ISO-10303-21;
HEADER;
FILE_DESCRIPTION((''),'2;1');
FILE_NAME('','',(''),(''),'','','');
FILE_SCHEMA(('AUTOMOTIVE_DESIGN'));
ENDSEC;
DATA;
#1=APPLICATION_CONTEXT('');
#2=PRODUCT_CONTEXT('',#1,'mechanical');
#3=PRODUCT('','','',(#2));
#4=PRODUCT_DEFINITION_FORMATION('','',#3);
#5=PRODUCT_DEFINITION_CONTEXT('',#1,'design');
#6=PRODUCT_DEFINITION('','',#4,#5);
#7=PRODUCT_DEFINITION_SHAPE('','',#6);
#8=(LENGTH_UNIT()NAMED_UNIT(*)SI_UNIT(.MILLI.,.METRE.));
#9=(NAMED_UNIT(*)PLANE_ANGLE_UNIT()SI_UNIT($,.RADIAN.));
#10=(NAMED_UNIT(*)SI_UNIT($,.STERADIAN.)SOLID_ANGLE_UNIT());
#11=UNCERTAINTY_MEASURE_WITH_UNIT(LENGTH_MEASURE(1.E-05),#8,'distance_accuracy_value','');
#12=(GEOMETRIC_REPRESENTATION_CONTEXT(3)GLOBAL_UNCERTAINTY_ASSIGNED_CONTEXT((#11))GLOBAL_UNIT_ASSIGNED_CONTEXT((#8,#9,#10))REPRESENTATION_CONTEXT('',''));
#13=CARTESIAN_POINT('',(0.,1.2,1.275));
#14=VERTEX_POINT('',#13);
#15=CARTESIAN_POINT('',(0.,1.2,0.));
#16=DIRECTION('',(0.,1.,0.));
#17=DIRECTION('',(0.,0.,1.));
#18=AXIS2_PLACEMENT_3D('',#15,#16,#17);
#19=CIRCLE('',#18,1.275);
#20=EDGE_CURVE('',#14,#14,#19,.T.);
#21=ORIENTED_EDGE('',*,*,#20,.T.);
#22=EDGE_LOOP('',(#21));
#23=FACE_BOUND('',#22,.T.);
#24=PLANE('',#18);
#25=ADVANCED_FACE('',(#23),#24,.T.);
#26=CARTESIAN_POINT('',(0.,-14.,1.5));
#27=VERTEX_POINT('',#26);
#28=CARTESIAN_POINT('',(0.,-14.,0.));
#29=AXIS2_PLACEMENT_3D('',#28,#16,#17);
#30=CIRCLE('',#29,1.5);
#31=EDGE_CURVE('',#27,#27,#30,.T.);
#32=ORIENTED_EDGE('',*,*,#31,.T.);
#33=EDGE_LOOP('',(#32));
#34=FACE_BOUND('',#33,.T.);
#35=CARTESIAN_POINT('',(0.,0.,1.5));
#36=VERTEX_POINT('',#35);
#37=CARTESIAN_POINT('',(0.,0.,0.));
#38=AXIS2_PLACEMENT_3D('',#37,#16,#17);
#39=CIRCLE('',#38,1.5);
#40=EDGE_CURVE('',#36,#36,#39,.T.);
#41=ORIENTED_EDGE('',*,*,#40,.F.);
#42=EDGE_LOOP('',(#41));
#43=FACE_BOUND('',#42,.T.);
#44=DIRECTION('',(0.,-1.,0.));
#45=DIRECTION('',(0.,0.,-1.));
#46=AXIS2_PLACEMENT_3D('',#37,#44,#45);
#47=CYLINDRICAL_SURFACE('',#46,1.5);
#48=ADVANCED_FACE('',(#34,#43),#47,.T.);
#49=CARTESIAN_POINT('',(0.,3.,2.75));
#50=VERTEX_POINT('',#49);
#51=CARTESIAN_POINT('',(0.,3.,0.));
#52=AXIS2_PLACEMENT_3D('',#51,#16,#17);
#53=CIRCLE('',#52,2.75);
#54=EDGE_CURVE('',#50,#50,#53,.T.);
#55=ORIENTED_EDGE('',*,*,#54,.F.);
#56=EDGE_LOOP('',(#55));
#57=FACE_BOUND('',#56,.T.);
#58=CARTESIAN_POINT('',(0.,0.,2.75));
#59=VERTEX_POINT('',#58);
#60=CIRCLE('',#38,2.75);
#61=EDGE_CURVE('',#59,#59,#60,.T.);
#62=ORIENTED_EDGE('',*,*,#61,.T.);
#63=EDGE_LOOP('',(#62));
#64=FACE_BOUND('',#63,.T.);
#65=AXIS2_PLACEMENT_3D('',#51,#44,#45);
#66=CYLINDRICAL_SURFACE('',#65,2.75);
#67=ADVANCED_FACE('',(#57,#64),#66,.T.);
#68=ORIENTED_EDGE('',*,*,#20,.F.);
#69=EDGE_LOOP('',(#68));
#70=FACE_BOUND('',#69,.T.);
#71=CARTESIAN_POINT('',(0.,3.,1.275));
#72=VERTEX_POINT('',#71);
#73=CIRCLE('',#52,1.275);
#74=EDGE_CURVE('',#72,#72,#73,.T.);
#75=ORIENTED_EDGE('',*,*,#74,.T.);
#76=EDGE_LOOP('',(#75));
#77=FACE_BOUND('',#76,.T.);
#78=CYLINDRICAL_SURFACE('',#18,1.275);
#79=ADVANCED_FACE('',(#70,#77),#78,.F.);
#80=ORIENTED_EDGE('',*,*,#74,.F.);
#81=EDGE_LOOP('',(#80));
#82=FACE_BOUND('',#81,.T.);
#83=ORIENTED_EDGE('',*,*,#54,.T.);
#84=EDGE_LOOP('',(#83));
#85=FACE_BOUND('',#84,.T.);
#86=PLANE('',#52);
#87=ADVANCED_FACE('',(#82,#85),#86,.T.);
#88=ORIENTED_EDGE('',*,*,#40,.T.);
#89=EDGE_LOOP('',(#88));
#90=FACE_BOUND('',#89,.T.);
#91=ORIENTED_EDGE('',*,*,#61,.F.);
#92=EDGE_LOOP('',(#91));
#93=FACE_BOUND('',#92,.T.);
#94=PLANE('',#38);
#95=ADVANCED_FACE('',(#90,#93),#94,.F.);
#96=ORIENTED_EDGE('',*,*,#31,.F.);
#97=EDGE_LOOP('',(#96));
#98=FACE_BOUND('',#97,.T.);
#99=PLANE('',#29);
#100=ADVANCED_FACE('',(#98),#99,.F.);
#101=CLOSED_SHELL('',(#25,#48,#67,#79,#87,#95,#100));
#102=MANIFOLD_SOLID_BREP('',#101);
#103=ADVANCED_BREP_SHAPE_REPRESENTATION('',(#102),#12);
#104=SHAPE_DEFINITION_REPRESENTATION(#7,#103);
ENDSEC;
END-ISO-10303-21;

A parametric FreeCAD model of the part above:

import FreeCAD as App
import Part
import Sketcher
Q = App.Units.Quantity

doc = App.newDocument("Part")
params = doc.addObject("Spreadsheet::Sheet", "Params")
for row, (alias, value) in enumerate([
    ("sketch1_diameter", "5.5 mm"),
    ("pad1_length", "3 mm"),
    ("sketch2_diameter", "3 mm"),
    ("pad2_length", "14 mm"),
    ("sketch3_diameter", "2.55 mm"),
    ("pocket1_length", "1.8 mm"),
], start=1):
    params.set(f"A{row}", alias)
    params.set(f"B{row}", "=" + value)
    params.setAlias(f"B{row}", alias)

body = doc.addObject("PartDesign::Body", "Body")

sketch1 = doc.addObject("Sketcher::SketchObject", "Sketch")
body.addObject(sketch1)
sketch1.AttachmentSupport = (doc.XZ_Plane, [""])
sketch1.MapMode = "FlatFace"
sketch1.addGeometry(Part.Circle(App.Vector(0, 0, 0), App.Vector(0, 0, 1), 2.8), False)
sketch1.addConstraint(Sketcher.Constraint("Coincident", 0, 3, -1, 1))
sketch1.addConstraint(Sketcher.Constraint("Diameter", 0, Q("5.5 mm")))
sketch1.setExpression("Constraints[1]", "Params.sketch1_diameter")
pad1 = doc.addObject("PartDesign::Pad", "Pad")
body.addObject(pad1)
pad1.Profile = sketch1
pad1.setExpression("Length", "Params.pad1_length")
pad1.Reversed = True

sketch2 = doc.addObject("Sketcher::SketchObject", "Sketch001")
body.addObject(sketch2)
sketch2.AttachmentSupport = (doc.XZ_Plane, [""])
sketch2.MapMode = "FlatFace"
sketch2.AttachmentOffset = App.Placement(App.Vector(0, 0, 14), App.Rotation())
sketch2.addGeometry(Part.Circle(App.Vector(0, 0, 0), App.Vector(0, 0, 1), 1.5), False)
sketch2.addConstraint(Sketcher.Constraint("Coincident", 0, 3, -1, 1))
sketch2.addConstraint(Sketcher.Constraint("Diameter", 0, Q("3 mm")))
sketch2.setExpression("Constraints[1]", "Params.sketch2_diameter")
pad2 = doc.addObject("PartDesign::Pad", "Pad001")
body.addObject(pad2)
pad2.Profile = sketch2
pad2.setExpression("Length", "Params.pad2_length")
pad2.Reversed = True

sketch3 = doc.addObject("Sketcher::SketchObject", "Sketch002")
body.addObject(sketch3)
sketch3.AttachmentSupport = (doc.XZ_Plane, [""])
sketch3.MapMode = "FlatFace"
sketch3.AttachmentOffset = App.Placement(App.Vector(0, 0, -3), App.Rotation())
sketch3.addGeometry(Part.Circle(App.Vector(0, 0, 0), App.Vector(0, 0, 1), 1.3), False)
sketch3.addConstraint(Sketcher.Constraint("Coincident", 0, 3, -1, 1))
sketch3.addConstraint(Sketcher.Constraint("Diameter", 0, Q("2.55 mm")))
sketch3.setExpression("Constraints[1]", "Params.sketch3_diameter")
pocket1 = doc.addObject("PartDesign::Pocket", "Pocket")
body.addObject(pocket1)
pocket1.Profile = sketch3
pocket1.setExpression("Length", "Params.pocket1_length")
pocket1.Reversed = True

doc.recompute()
